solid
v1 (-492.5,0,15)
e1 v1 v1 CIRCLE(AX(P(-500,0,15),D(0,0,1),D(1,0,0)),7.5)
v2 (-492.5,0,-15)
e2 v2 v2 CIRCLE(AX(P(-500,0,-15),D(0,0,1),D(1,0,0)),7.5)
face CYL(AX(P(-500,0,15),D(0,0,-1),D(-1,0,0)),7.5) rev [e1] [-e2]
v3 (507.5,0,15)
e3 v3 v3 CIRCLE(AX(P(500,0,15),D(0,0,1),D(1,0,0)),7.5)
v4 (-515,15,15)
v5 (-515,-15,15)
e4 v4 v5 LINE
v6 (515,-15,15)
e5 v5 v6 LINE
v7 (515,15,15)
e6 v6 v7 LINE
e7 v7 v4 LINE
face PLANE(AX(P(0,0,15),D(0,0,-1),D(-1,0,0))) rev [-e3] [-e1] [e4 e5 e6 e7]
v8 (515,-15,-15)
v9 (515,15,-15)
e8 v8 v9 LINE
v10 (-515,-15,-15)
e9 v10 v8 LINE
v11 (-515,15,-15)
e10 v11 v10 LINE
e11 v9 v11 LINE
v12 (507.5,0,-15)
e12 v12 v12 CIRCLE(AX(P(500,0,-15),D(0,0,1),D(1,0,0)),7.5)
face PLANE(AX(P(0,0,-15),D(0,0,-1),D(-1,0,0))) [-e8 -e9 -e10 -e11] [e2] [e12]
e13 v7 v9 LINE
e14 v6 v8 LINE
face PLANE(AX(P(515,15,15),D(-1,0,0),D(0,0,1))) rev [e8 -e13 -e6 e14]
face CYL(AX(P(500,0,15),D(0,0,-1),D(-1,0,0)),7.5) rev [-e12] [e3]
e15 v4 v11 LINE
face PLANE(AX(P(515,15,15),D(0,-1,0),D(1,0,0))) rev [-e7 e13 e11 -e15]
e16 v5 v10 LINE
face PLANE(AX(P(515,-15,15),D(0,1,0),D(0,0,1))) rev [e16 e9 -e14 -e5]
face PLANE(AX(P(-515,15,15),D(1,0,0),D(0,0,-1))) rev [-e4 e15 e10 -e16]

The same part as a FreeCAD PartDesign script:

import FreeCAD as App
import Part
import Sketcher
from FreeCAD import Vector


def add_polygon(sketch, points):
    """Adds a closed chain of lines whose ends are joined by coincident constraints."""
    first, n = sketch.GeometryCount, len(points)
    for a, b in zip(points, points[1:] + points[:1]):
        sketch.addGeometry(Part.LineSegment(App.Vector(*a, 0), App.Vector(*b, 0)), False)
    for i in range(n):
        sketch.addConstraint(Sketcher.Constraint("Coincident", first + i, 2, first + (i + 1) % n, 1))

doc = App.newDocument("Part")
body = doc.addObject("PartDesign::Body", "Body")

# Sketch on XY plane
sketch1 = body.newObject("Sketcher::SketchObject", "Sketch")
sketch1.AttachmentSupport = (doc.getObject("XY_Plane"), [""])
sketch1.MapMode = "FlatFace"
add_polygon(sketch1, [(-515, 15), (-515, -15), (515, -15), (515, 15)])  # lines 0-3
sketch1.addGeometry(Part.Circle(Vector(-500, 0, 0), Vector(0, 0, 1), 7.5), False)  # 4
sketch1.addGeometry(Part.Circle(Vector(500, 0, 0), Vector(0, 0, 1), 7.5), False)  # 5
sketch1.addConstraint([
    Sketcher.Constraint("Vertical", 0),
    Sketcher.Constraint("Horizontal", 1),
    Sketcher.Constraint("Vertical", 2),
    Sketcher.Constraint("Horizontal", 3),
    Sketcher.Constraint("Equal", 4, 5),
    Sketcher.Constraint("Symmetric", 4, 3, 5, 3, -1, 1),
    Sketcher.Constraint("Symmetric", 0, 2, 2, 2, -1, 1),
    Sketcher.Constraint("PointOnObject", 4, 3, -1),
    Sketcher.Constraint("Diameter", 4, 15.0),
    Sketcher.Constraint("DistanceX", 1, 1, 1, 2, 1030.0),
    Sketcher.Constraint("DistanceY", 0, 2, 0, 1, 30.0),
    Sketcher.Constraint("DistanceX", 4, 3, -1, 1, 500.0),
])
pad1 = body.newObject("PartDesign::Pad", "Pad")
pad1.Profile = sketch1
pad1.Length = 30
pad1.Midplane = True

doc.recompute()
